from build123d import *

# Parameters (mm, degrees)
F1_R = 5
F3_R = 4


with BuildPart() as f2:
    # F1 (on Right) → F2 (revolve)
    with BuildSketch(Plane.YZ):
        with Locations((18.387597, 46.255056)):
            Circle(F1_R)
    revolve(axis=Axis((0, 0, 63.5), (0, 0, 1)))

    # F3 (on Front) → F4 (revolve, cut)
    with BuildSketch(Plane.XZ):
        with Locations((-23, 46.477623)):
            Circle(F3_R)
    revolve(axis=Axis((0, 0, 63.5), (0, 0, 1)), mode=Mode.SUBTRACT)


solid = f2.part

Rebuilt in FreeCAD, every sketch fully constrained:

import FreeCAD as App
import Part
import Sketcher
from FreeCAD import Vector
Q = App.Units.Quantity

doc = App.newDocument("Part")
body = doc.addObject("PartDesign::Body", "Body")

sketch1 = body.newObject("Sketcher::SketchObject", "Sketch")
sketch1.AttachmentSupport = (doc.getObject("YZ_Plane"), [""])
sketch1.MapMode = "FlatFace"
sketch1.addGeometry(Part.Circle(Vector(18.387597, 46.255056, 0), Vector(0, 0, 1), 5), False)
sketch1.addConstraint([
    Sketcher.Constraint("Diameter", 0, Q("10 mm")),
    Sketcher.Constraint("DistanceX", -1, 1, 0, 3, Q("18.387597 mm")),
    Sketcher.Constraint("DistanceY", -1, 1, 0, 3, Q("46.255056 mm")),
])
revolution = body.newObject("PartDesign::Revolution", "Revolution")
revolution.Profile = sketch1
revolution.ReferenceAxis = (sketch1, ["V_Axis"])
revolution.Angle = 360

sketch2 = body.newObject("Sketcher::SketchObject", "Sketch001")
sketch2.AttachmentSupport = (doc.getObject("XZ_Plane"), [""])
sketch2.MapMode = "FlatFace"
sketch2.addGeometry(Part.Circle(Vector(-23, 46.477623, 0), Vector(0, 0, 1), 4), False)
sketch2.addConstraint([
    Sketcher.Constraint("Diameter", 0, Q("8 mm")),
    Sketcher.Constraint("DistanceX", 0, 3, -1, 1, Q("23 mm")),
    Sketcher.Constraint("DistanceY", -1, 1, 0, 3, Q("46.477623 mm")),
])
groove = body.newObject("PartDesign::Groove", "Groove")
groove.Profile = sketch2
groove.ReferenceAxis = (sketch2, ["V_Axis"])
groove.Angle = 360

doc.recompute()
